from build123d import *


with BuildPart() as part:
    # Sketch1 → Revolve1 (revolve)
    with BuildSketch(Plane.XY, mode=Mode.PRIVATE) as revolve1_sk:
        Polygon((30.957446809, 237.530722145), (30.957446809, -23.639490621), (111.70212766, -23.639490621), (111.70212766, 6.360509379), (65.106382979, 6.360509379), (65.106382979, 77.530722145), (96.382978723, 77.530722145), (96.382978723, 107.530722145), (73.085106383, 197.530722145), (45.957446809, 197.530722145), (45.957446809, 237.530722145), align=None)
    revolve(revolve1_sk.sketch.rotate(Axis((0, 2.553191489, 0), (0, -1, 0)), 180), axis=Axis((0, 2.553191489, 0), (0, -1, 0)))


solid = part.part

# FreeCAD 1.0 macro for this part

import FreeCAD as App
import Part
import Sketcher

V = App.Vector


def add_polygon(sketch, points):
    """Adds a closed chain of lines whose ends are joined by coincident constraints."""
    first, n = sketch.GeometryCount, len(points)
    for a, b in zip(points, points[1:] + points[:1]):
        sketch.addGeometry(Part.LineSegment(App.Vector(*a, 0), App.Vector(*b, 0)), False)
    for i in range(n):
        sketch.addConstraint(Sketcher.Constraint("Coincident", first + i, 2, first + (i + 1) % n, 1))

doc = App.newDocument("Part")
params = doc.addObject("Spreadsheet::Sheet", "Params")
for row, (alias, value) in enumerate([
    ("sketch1_width", "15 mm"),
    ("sketch1_height", "30 mm"),
    ("sketch1_height2", "40 mm"),
    ("revolution_angle", "360 deg"),
], start=1):
    params.set(f"A{row}", alias)
    params.set(f"B{row}", "=" + value)
    params.setAlias(f"B{row}", alias)

body = doc.addObject("PartDesign::Body", "Body")

sketch1 = body.newObject("Sketcher::SketchObject", "Sketch")
sketch1.AttachmentSupport = (doc.getObject("XY_Plane"), [""])
sketch1.MapMode = "FlatFace"
add_polygon(sketch1, [(31, 238), (31, -24), (112, -24), (112, 6), (65, 6), (65, 78), (96, 78), (96, 108), (73, 198), (46, 198), (46, 238)])
sketch1.addConstraint(Sketcher.Constraint("Vertical", 0))
sketch1.addConstraint(Sketcher.Constraint("Horizontal", 1))
sketch1.addConstraint(Sketcher.Constraint("Vertical", 2))
sketch1.addConstraint(Sketcher.Constraint("Horizontal", 3))
sketch1.addConstraint(Sketcher.Constraint("Vertical", 4))
sketch1.addConstraint(Sketcher.Constraint("Horizontal", 5))
sketch1.addConstraint(Sketcher.Constraint("Vertical", 6))
sketch1.addConstraint(Sketcher.Constraint("Horizontal", 8))
sketch1.addConstraint(Sketcher.Constraint("Vertical", 9))
sketch1.addConstraint(Sketcher.Constraint("Horizontal", 10))
sketch1.addConstraint(Sketcher.Constraint("Equal", 2, 6))
sketch1.addConstraint(Sketcher.Constraint("DistanceX", 10, 2, 10, 1, 15.0))
sketch1.addConstraint(Sketcher.Constraint("DistanceY", 2, 1, 2, 2, 30.0))
sketch1.addConstraint(Sketcher.Constraint("DistanceY", 9, 1, 9, 2, 40.0))
sketch1.addConstraint(Sketcher.Constraint("DistanceY", 6, 2, 7, 2, 90.0))
sketch1.addConstraint(Sketcher.Constraint("DistanceX", 1, 1, 1, 2, 80.744681))
sketch1.addConstraint(Sketcher.Constraint("DistanceX", 8, 2, 8, 1, 27.12766))
sketch1.addConstraint(Sketcher.Constraint("Distance", 7, 92.966612))
sketch1.addConstraint(Sketcher.Constraint("DistanceX", 3, 2, 3, 1, 46.595745))
sketch1.addConstraint(Sketcher.Constraint("DistanceY", 0, 2, 0, 1, 261.170213))
sketch1.addConstraint(Sketcher.Constraint("DistanceY", 0, 2, -1, 1, 23.639491))
sketch1.addConstraint(Sketcher.Constraint("DistanceX", -1, 1, 5, 2, 96.382979))
sketch1.setExpression("Constraints[22]", "Params.sketch1_width")
sketch1.setExpression("Constraints[23]", "Params.sketch1_height")
sketch1.setExpression("Constraints[24]", "Params.sketch1_height2")
revolution = body.newObject("PartDesign::Revolution", "Revolution")
revolution.Profile = sketch1
revolution.ReferenceAxis = (sketch1, ["V_Axis"])
revolution.setExpression("Angle", "Params.revolution_angle")

doc.recompute()
